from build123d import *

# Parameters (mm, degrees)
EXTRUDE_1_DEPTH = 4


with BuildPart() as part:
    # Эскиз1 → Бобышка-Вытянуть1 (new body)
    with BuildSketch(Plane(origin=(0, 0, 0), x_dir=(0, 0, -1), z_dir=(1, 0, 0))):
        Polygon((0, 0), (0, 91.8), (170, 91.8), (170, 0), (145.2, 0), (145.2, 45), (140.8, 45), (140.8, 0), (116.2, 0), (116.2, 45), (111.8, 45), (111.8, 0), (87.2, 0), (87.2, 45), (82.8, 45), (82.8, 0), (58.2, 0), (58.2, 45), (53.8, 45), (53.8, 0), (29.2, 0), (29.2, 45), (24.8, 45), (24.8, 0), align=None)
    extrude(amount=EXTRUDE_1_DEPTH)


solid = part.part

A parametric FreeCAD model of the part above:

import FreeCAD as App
import Part
import Sketcher

V = App.Vector


def add_polygon(sketch, points):
    """Adds a closed chain of lines whose ends are joined by coincident constraints."""
    first, n = sketch.GeometryCount, len(points)
    for a, b in zip(points, points[1:] + points[:1]):
        sketch.addGeometry(Part.LineSegment(App.Vector(*a, 0), App.Vector(*b, 0)), False)
    for i in range(n):
        sketch.addConstraint(Sketcher.Constraint("Coincident", first + i, 2, first + (i + 1) % n, 1))

doc = App.newDocument("Part")
body = doc.addObject("PartDesign::Body", "Body")

# Sketch on YZ plane
sketch1 = doc.addObject("Sketcher::SketchObject", "Sketch")
body.addObject(sketch1)
sketch1.AttachmentSupport = (doc.YZ_Plane, [""])
sketch1.MapMode = "FlatFace"
add_polygon(sketch1, [(91.8, 0), (0, 0), (0, -24.8), (45, -24.8), (45, -29.2), (0, -29.2), (0, -53.8), (45, -53.8), (45, -58.2), (0, -58.2), (0, -82.8), (45, -82.8), (45, -87.2), (0, -87.2), (0, -111.8), (45, -111.8), (45, -116.2), (0, -116.2), (0, -140.8), (45, -140.8), (45, -145.2), (0, -145.2), (0, -170), (91.8, -170)])  # lines 0-23
sketch1.addConstraint(Sketcher.Constraint("Horizontal", 0))
sketch1.addConstraint(Sketcher.Constraint("Vertical", 1))
sketch1.addConstraint(Sketcher.Constraint("Horizontal", 2))
sketch1.addConstraint(Sketcher.Constraint("Vertical", 3))
sketch1.addConstraint(Sketcher.Constraint("Horizontal", 4))
sketch1.addConstraint(Sketcher.Constraint("Vertical", 5))
sketch1.addConstraint(Sketcher.Constraint("Horizontal", 6))
sketch1.addConstraint(Sketcher.Constraint("Vertical", 7))
sketch1.addConstraint(Sketcher.Constraint("Horizontal", 8))
sketch1.addConstraint(Sketcher.Constraint("Vertical", 9))
sketch1.addConstraint(Sketcher.Constraint("Horizontal", 10))
sketch1.addConstraint(Sketcher.Constraint("Vertical", 11))
sketch1.addConstraint(Sketcher.Constraint("Horizontal", 12))
sketch1.addConstraint(Sketcher.Constraint("Vertical", 13))
sketch1.addConstraint(Sketcher.Constraint("Horizontal", 14))
sketch1.addConstraint(Sketcher.Constraint("Vertical", 15))
sketch1.addConstraint(Sketcher.Constraint("Horizontal", 16))
sketch1.addConstraint(Sketcher.Constraint("Vertical", 17))
sketch1.addConstraint(Sketcher.Constraint("Horizontal", 18))
sketch1.addConstraint(Sketcher.Constraint("Vertical", 19))
sketch1.addConstraint(Sketcher.Constraint("Horizontal", 20))
sketch1.addConstraint(Sketcher.Constraint("Vertical", 21))
sketch1.addConstraint(Sketcher.Constraint("Horizontal", 22))
sketch1.addConstraint(Sketcher.Constraint("Vertical", 23))
sketch1.addConstraint(Sketcher.Constraint("Coincident", 0, 2, -1, 1))
sketch1.addConstraint(Sketcher.Constraint("PointOnObject", 4, 2, -2))
sketch1.addConstraint(Sketcher.Constraint("PointOnObject", 8, 2, -2))
sketch1.addConstraint(Sketcher.Constraint("PointOnObject", 12, 2, -2))
sketch1.addConstraint(Sketcher.Constraint("PointOnObject", 16, 2, -2))
sketch1.addConstraint(Sketcher.Constraint("PointOnObject", 20, 2, -2))
sketch1.addConstraint(Sketcher.Constraint("Vertical", 3, 2, 6, 2))
sketch1.addConstraint(Sketcher.Constraint("Vertical", 7, 2, 10, 2))
sketch1.addConstraint(Sketcher.Constraint("Vertical", 11, 2, 14, 2))
sketch1.addConstraint(Sketcher.Constraint("Vertical", 15, 2, 18, 2))
sketch1.addConstraint(Sketcher.Constraint("Equal", 3, 7))
sketch1.addConstraint(Sketcher.Constraint("Equal", 5, 9))
sketch1.addConstraint(Sketcher.Constraint("Equal", 7, 11))
sketch1.addConstraint(Sketcher.Constraint("Equal", 9, 13))
sketch1.addConstraint(Sketcher.Constraint("Equal", 11, 15))
sketch1.addConstraint(Sketcher.Constraint("Equal", 13, 17))
sketch1.addConstraint(Sketcher.Constraint("Equal", 15, 19))
sketch1.addConstraint(Sketcher.Constraint("Equal", 1, 21))
sketch1.addConstraint(Sketcher.Constraint("DistanceX", 2, 1, 2, 2, 45.0))
sketch1.addConstraint(Sketcher.Constraint("DistanceY", 23, 1, 23, 2, 170.0))
sketch1.addConstraint(Sketcher.Constraint("DistanceX", 0, 2, 0, 1, 91.8))
sketch1.addConstraint(Sketcher.Constraint("DistanceY", 1, 2, 1, 1, 24.8))
sketch1.addConstraint(Sketcher.Constraint("DistanceY", 3, 2, 3, 1, 4.4))
pad1 = doc.addObject("PartDesign::Pad", "Pad")
body.addObject(pad1)
pad1.Profile = sketch1
pad1.Length = 4

doc.recompute()
